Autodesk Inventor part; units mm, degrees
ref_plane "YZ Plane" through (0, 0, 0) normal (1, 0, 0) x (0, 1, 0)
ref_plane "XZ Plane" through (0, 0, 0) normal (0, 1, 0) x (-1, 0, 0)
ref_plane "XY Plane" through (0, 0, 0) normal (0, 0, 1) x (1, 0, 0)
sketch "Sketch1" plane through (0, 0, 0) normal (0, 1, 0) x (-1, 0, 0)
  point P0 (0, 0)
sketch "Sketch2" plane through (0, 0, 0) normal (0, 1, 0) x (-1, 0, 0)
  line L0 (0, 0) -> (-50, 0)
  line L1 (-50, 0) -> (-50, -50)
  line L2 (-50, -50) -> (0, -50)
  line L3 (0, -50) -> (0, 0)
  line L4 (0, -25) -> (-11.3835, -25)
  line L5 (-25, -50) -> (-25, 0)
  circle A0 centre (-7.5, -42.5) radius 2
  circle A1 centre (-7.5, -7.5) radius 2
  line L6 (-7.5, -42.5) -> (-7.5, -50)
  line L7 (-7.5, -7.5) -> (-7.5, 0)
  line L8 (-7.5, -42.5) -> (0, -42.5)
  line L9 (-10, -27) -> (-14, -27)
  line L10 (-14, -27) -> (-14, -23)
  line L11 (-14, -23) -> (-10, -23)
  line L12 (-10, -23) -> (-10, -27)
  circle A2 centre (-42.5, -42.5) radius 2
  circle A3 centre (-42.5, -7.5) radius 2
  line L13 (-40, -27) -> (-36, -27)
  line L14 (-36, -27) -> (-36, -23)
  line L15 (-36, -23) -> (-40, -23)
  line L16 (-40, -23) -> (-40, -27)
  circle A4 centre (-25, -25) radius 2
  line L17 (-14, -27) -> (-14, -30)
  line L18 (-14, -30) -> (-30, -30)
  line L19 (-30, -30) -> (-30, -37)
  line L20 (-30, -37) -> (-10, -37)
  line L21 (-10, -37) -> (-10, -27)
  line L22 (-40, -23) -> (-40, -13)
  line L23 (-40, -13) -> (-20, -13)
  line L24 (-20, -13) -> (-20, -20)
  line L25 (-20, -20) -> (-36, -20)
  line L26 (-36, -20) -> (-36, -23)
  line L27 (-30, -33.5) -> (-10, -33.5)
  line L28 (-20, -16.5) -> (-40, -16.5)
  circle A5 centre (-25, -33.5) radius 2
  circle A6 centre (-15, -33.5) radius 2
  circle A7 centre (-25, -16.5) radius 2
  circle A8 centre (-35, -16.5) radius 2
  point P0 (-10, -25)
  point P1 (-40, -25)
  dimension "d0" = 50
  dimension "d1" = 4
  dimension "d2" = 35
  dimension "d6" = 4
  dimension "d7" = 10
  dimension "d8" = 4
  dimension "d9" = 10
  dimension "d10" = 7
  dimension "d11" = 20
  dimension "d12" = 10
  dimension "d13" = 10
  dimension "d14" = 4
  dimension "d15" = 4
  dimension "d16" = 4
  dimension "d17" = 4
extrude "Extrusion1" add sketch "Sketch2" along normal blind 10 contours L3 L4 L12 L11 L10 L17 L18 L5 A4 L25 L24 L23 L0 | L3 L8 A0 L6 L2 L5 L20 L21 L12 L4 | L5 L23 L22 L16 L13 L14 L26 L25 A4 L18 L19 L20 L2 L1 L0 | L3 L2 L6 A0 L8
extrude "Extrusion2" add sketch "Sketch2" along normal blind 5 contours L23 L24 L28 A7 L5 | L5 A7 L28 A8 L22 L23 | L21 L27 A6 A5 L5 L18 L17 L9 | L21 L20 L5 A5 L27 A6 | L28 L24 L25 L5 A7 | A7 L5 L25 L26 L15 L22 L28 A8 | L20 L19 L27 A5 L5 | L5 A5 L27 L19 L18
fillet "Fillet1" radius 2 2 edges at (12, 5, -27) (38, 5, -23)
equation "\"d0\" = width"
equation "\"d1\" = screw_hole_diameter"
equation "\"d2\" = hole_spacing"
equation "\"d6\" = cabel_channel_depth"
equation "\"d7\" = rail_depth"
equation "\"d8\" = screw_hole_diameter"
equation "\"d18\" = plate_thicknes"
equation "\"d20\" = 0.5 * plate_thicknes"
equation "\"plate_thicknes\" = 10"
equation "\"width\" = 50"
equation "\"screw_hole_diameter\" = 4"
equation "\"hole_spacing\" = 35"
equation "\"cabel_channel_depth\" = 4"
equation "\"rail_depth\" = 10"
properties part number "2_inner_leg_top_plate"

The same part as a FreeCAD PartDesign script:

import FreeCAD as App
import Part
import Sketcher

V = App.Vector


def edges_at(feature, points):
    """Names of the edges that pass closest to the given points."""
    edges = feature.Shape.Edges
    near = lambda p: min(range(len(edges)), key=lambda i: edges[i].distToShape(Part.Vertex(*p))[0])
    return sorted({f"Edge{near(p) + 1}" for p in points})

doc = App.newDocument("Part")
body = doc.addObject("PartDesign::Body", "Body")

# Sketch on XZ plane
sketch1 = doc.addObject("Sketcher::SketchObject", "Sketch")
body.addObject(sketch1)
sketch1.AttachmentSupport = (doc.XZ_Plane, [""])
sketch1.MapMode = "FlatFace"
sketch1.addGeometry([
    Part.LineSegment(V(0, 0, 0), V(7.5, 0, 0)),  # 0
    Part.LineSegment(V(7.5, 0, 0), V(50, 0, 0)),  # 1
    Part.LineSegment(V(50, 0, 0), V(50, -50, 0)),  # 2
    Part.LineSegment(V(50, -50, 0), V(0, -50, 0)),  # 3
    Part.LineSegment(V(0, -50, 0), V(0, 0, 0)),  # 4
    Part.LineSegment(V(10, -23, 0), V(10, -37, 0)),  # 5
    Part.LineSegment(V(10, -37, 0), V(30, -37, 0)),  # 6
    Part.LineSegment(V(30, -37, 0), V(30, -30, 0)),  # 7
    Part.LineSegment(V(30, -30, 0), V(14, -30, 0)),  # 8
    Part.LineSegment(V(14, -30, 0), V(14, -23, 0)),  # 9
    Part.LineSegment(V(14, -23, 0), V(10, -23, 0)),  # 10
    Part.Circle(V(25, -25, 0), V(0, 0, 1), 2),  # 11
    Part.LineSegment(V(20, -20, 0), V(36, -20, 0)),  # 12
    Part.LineSegment(V(36, -20, 0), V(36, -27, 0)),  # 13
    Part.LineSegment(V(36, -27, 0), V(40, -27, 0)),  # 14
    Part.LineSegment(V(40, -27, 0), V(40, -13, 0)),  # 15
    Part.LineSegment(V(40, -13, 0), V(20, -13, 0)),  # 16
    Part.LineSegment(V(20, -13, 0), V(20, -20, 0)),  # 17
    Part.Circle(V(7.5, -7.5, 0), V(0, 0, 1), 2),  # 18
    Part.Circle(V(7.5, -42.5, 0), V(0, 0, 1), 2),  # 19
    Part.Circle(V(42.5, -42.5, 0), V(0, 0, 1), 2),  # 20
    Part.Circle(V(42.5, -7.5, 0), V(0, 0, 1), 2),  # 21
], False)
sketch1.addConstraint([
    Sketcher.Constraint("Coincident", 0, 2, 1, 1),
    Sketcher.Constraint("Coincident", 1, 2, 2, 1),
    Sketcher.Constraint("Coincident", 2, 2, 3, 1),
    Sketcher.Constraint("Coincident", 3, 2, 4, 1),
    Sketcher.Constraint("Coincident", 4, 2, 0, 1),
    Sketcher.Constraint("Coincident", 5, 2, 6, 1),
    Sketcher.Constraint("Coincident", 6, 2, 7, 1),
    Sketcher.Constraint("Coincident", 7, 2, 8, 1),
    Sketcher.Constraint("Coincident", 8, 2, 9, 1),
    Sketcher.Constraint("Coincident", 9, 2, 10, 1),
    Sketcher.Constraint("Coincident", 10, 2, 5, 1),
    Sketcher.Constraint("Coincident", 12, 2, 13, 1),
    Sketcher.Constraint("Coincident", 13, 2, 14, 1),
    Sketcher.Constraint("Coincident", 14, 2, 15, 1),
    Sketcher.Constraint("Coincident", 15, 2, 16, 1),
    Sketcher.Constraint("Coincident", 16, 2, 17, 1),
    Sketcher.Constraint("Coincident", 17, 2, 12, 1),
    Sketcher.Constraint("Horizontal", 0),
    Sketcher.Constraint("Horizontal", 1),
    Sketcher.Constraint("Vertical", 2),
    Sketcher.Constraint("Horizontal", 3),
    Sketcher.Constraint("Vertical", 4),
    Sketcher.Constraint("Vertical", 5),
    Sketcher.Constraint("Horizontal", 6),
    Sketcher.Constraint("Vertical", 7),
    Sketcher.Constraint("Horizontal", 8),
    Sketcher.Constraint("Vertical", 9),
    Sketcher.Constraint("Horizontal", 10),
    Sketcher.Constraint("Horizontal", 12),
    Sketcher.Constraint("Vertical", 13),
    Sketcher.Constraint("Horizontal", 14),
    Sketcher.Constraint("Vertical", 15),
    Sketcher.Constraint("Horizontal", 16),
    Sketcher.Constraint("Vertical", 17),
    Sketcher.Constraint("Coincident", 4, 2, -1, 1),
    Sketcher.Constraint("Equal", 11, 18),
    Sketcher.Constraint("Equal", 18, 19),
    Sketcher.Constraint("Equal", 19, 20),
    Sketcher.Constraint("Equal", 20, 21),
    Sketcher.Constraint("Horizontal", 19, 3, 20, 3),
    Sketcher.Constraint("Horizontal", 18, 3, 21, 3),
    Sketcher.Constraint("Vertical", 18, 3, 19, 3),
    Sketcher.Constraint("Vertical", 20, 3, 21, 3),
    Sketcher.Constraint("Vertical", 19, 3, 0, 2),
    Sketcher.Constraint("Equal", 8, 12),
    Sketcher.Constraint("Equal", 10, 14),
    Sketcher.Constraint("Equal", 3, 2),
    Sketcher.Constraint("Equal", 7, 9),
    Sketcher.Constraint("Equal", 9, 13),
    Sketcher.Constraint("Equal", 5, 15),
    Sketcher.Constraint("Diameter", 11, 4.0),
    Sketcher.Constraint("DistanceX", 3, 2, 3, 1, 50.0),
    Sketcher.Constraint("DistanceX", 6, 1, 6, 2, 20.0),
    Sketcher.Constraint("DistanceX", 10, 2, 10, 1, 4.0),
    Sketcher.Constraint("DistanceY", 7, 1, 7, 2, 7.0),
    Sketcher.Constraint("DistanceX", -1, 1, 5, 2, 10.0),
    Sketcher.Constraint("DistanceY", 12, 2, -1, 1, 20.0),
    Sketcher.Constraint("DistanceX", -1, 1, 16, 2, 20.0),
    Sketcher.Constraint("DistanceY", 19, 3, 18, 3, 35.0),
    Sketcher.Constraint("DistanceX", 19, 3, 20, 3, 35.0),
    Sketcher.Constraint("DistanceY", 7, 2, 12, 2, 10.0),
    Sketcher.Constraint("DistanceX", 0, 1, 0, 2, 7.5),
    Sketcher.Constraint("DistanceX", -1, 1, 11, 3, 25.0),
    Sketcher.Constraint("DistanceY", 11, 3, -1, 1, 25.0),
    Sketcher.Constraint("DistanceY", 18, 3, -1, 1, 7.5),
])
pad1 = doc.addObject("PartDesign::Pad", "Pad")
body.addObject(pad1)
pad1.Profile = sketch1
pad1.Length = 10
pad1.Reversed = True

# Sketch on XZ plane
sketch2 = doc.addObject("Sketcher::SketchObject", "Sketch001")
body.addObject(sketch2)
sketch2.AttachmentSupport = (doc.XZ_Plane, [""])
sketch2.MapMode = "FlatFace"
sketch2.addGeometry([
    Part.LineSegment(V(20, -13, 0), V(40, -13, 0)),  # 0
    Part.LineSegment(V(40, -13, 0), V(40, -23, 0)),  # 1
    Part.LineSegment(V(40, -23, 0), V(36, -23, 0)),  # 2
    Part.LineSegment(V(36, -23, 0), V(36, -20, 0)),  # 3
    Part.LineSegment(V(36, -20, 0), V(20, -20, 0)),  # 4
    Part.LineSegment(V(20, -20, 0), V(20, -13, 0)),  # 5
    Part.Circle(V(25, -16.5, 0), V(0, 0, 1), 2),  # 6
    Part.Circle(V(35, -16.5, 0), V(0, 0, 1), 2),  # 7
    Part.LineSegment(V(10, -27, 0), V(14, -27, 0)),  # 8
    Part.LineSegment(V(14, -27, 0), V(14, -30, 0)),  # 9
    Part.LineSegment(V(14, -30, 0), V(30, -30, 0)),  # 10
    Part.LineSegment(V(30, -30, 0), V(30, -37, 0)),  # 11
    Part.LineSegment(V(30, -37, 0), V(10, -37, 0)),  # 12
    Part.LineSegment(V(10, -37, 0), V(10, -27, 0)),  # 13
    Part.Circle(V(15, -33.5, 0), V(0, 0, 1), 2),  # 14
    Part.Circle(V(25, -33.5, 0), V(0, 0, 1), 2),  # 15
], False)
sketch2.addConstraint([
    Sketcher.Constraint("Coincident", 0, 2, 1, 1),
    Sketcher.Constraint("Coincident", 1, 2, 2, 1),
    Sketcher.Constraint("Coincident", 2, 2, 3, 1),
    Sketcher.Constraint("Coincident", 3, 2, 4, 1),
    Sketcher.Constraint("Coincident", 4, 2, 5, 1),
    Sketcher.Constraint("Coincident", 5, 2, 0, 1),
    Sketcher.Constraint("Coincident", 8, 2, 9, 1),
    Sketcher.Constraint("Coincident", 9, 2, 10, 1),
    Sketcher.Constraint("Coincident", 10, 2, 11, 1),
    Sketcher.Constraint("Coincident", 11, 2, 12, 1),
    Sketcher.Constraint("Coincident", 12, 2, 13, 1),
    Sketcher.Constraint("Coincident", 13, 2, 8, 1),
    Sketcher.Constraint("Horizontal", 0),
    Sketcher.Constraint("Vertical", 1),
    Sketcher.Constraint("Horizontal", 2),
    Sketcher.Constraint("Vertical", 3),
    Sketcher.Constraint("Horizontal", 4),
    Sketcher.Constraint("Vertical", 5),
    Sketcher.Constraint("Horizontal", 8),
    Sketcher.Constraint("Vertical", 9),
    Sketcher.Constraint("Horizontal", 10),
    Sketcher.Constraint("Vertical", 11),
    Sketcher.Constraint("Horizontal", 12),
    Sketcher.Constraint("Vertical", 13),
    Sketcher.Constraint("Equal", 6, 7),
    Sketcher.Constraint("Equal", 7, 14),
    Sketcher.Constraint("Equal", 14, 15),
    Sketcher.Constraint("Horizontal", 6, 3, 7, 3),
    Sketcher.Constraint("Horizontal", 14, 3, 15, 3),
    Sketcher.Constraint("Vertical", 6, 3, 15, 3),
    Sketcher.Constraint("Equal", 2, 8),
    Sketcher.Constraint("Equal", 4, 10),
    Sketcher.Constraint("Equal", 3, 9),
    Sketcher.Constraint("Equal", 5, 11),
    Sketcher.Constraint("Diameter", 6, 4.0),
    Sketcher.Constraint("DistanceX", 0, 1, 0, 2, 20.0),
    Sketcher.Constraint("DistanceX", 2, 2, 2, 1, 4.0),
    Sketcher.Constraint("DistanceY", 1, 2, 1, 1, 10.0),
    Sketcher.Constraint("DistanceY", 5, 1, 5, 2, 7.0),
    Sketcher.Constraint("DistanceX", -1, 1, 7, 3, 35.0),
    Sketcher.Constraint("DistanceY", 3, 2, -1, 1, 20.0),
    Sketcher.Constraint("DistanceX", -1, 1, 4, 2, 20.0),
    Sketcher.Constraint("DistanceX", -1, 1, 12, 2, 10.0),
    Sketcher.Constraint("DistanceX", 6, 3, 7, 3, 10.0),
    Sketcher.Constraint("DistanceX", 14, 3, 6, 3, 10.0),
    Sketcher.Constraint("DistanceY", 8, 2, 4, 2, 7.0),
    Sketcher.Constraint("DistanceY", 14, 3, 6, 3, 17.0),
    Sketcher.Constraint("DistanceY", 6, 3, -1, 1, 16.5),
])
pad2 = doc.addObject("PartDesign::Pad", "Pad001")
body.addObject(pad2)
pad2.Profile = sketch2
pad2.Length = 5
pad2.Reversed = True
doc.recompute()

fillet = doc.addObject("PartDesign::Fillet", "Fillet")
body.addObject(fillet)
fillet.Base = (pad2, edges_at(pad2, [(12, 5, -27), (38, 5, -23)]))
fillet.Radius = 2

doc.recompute()
